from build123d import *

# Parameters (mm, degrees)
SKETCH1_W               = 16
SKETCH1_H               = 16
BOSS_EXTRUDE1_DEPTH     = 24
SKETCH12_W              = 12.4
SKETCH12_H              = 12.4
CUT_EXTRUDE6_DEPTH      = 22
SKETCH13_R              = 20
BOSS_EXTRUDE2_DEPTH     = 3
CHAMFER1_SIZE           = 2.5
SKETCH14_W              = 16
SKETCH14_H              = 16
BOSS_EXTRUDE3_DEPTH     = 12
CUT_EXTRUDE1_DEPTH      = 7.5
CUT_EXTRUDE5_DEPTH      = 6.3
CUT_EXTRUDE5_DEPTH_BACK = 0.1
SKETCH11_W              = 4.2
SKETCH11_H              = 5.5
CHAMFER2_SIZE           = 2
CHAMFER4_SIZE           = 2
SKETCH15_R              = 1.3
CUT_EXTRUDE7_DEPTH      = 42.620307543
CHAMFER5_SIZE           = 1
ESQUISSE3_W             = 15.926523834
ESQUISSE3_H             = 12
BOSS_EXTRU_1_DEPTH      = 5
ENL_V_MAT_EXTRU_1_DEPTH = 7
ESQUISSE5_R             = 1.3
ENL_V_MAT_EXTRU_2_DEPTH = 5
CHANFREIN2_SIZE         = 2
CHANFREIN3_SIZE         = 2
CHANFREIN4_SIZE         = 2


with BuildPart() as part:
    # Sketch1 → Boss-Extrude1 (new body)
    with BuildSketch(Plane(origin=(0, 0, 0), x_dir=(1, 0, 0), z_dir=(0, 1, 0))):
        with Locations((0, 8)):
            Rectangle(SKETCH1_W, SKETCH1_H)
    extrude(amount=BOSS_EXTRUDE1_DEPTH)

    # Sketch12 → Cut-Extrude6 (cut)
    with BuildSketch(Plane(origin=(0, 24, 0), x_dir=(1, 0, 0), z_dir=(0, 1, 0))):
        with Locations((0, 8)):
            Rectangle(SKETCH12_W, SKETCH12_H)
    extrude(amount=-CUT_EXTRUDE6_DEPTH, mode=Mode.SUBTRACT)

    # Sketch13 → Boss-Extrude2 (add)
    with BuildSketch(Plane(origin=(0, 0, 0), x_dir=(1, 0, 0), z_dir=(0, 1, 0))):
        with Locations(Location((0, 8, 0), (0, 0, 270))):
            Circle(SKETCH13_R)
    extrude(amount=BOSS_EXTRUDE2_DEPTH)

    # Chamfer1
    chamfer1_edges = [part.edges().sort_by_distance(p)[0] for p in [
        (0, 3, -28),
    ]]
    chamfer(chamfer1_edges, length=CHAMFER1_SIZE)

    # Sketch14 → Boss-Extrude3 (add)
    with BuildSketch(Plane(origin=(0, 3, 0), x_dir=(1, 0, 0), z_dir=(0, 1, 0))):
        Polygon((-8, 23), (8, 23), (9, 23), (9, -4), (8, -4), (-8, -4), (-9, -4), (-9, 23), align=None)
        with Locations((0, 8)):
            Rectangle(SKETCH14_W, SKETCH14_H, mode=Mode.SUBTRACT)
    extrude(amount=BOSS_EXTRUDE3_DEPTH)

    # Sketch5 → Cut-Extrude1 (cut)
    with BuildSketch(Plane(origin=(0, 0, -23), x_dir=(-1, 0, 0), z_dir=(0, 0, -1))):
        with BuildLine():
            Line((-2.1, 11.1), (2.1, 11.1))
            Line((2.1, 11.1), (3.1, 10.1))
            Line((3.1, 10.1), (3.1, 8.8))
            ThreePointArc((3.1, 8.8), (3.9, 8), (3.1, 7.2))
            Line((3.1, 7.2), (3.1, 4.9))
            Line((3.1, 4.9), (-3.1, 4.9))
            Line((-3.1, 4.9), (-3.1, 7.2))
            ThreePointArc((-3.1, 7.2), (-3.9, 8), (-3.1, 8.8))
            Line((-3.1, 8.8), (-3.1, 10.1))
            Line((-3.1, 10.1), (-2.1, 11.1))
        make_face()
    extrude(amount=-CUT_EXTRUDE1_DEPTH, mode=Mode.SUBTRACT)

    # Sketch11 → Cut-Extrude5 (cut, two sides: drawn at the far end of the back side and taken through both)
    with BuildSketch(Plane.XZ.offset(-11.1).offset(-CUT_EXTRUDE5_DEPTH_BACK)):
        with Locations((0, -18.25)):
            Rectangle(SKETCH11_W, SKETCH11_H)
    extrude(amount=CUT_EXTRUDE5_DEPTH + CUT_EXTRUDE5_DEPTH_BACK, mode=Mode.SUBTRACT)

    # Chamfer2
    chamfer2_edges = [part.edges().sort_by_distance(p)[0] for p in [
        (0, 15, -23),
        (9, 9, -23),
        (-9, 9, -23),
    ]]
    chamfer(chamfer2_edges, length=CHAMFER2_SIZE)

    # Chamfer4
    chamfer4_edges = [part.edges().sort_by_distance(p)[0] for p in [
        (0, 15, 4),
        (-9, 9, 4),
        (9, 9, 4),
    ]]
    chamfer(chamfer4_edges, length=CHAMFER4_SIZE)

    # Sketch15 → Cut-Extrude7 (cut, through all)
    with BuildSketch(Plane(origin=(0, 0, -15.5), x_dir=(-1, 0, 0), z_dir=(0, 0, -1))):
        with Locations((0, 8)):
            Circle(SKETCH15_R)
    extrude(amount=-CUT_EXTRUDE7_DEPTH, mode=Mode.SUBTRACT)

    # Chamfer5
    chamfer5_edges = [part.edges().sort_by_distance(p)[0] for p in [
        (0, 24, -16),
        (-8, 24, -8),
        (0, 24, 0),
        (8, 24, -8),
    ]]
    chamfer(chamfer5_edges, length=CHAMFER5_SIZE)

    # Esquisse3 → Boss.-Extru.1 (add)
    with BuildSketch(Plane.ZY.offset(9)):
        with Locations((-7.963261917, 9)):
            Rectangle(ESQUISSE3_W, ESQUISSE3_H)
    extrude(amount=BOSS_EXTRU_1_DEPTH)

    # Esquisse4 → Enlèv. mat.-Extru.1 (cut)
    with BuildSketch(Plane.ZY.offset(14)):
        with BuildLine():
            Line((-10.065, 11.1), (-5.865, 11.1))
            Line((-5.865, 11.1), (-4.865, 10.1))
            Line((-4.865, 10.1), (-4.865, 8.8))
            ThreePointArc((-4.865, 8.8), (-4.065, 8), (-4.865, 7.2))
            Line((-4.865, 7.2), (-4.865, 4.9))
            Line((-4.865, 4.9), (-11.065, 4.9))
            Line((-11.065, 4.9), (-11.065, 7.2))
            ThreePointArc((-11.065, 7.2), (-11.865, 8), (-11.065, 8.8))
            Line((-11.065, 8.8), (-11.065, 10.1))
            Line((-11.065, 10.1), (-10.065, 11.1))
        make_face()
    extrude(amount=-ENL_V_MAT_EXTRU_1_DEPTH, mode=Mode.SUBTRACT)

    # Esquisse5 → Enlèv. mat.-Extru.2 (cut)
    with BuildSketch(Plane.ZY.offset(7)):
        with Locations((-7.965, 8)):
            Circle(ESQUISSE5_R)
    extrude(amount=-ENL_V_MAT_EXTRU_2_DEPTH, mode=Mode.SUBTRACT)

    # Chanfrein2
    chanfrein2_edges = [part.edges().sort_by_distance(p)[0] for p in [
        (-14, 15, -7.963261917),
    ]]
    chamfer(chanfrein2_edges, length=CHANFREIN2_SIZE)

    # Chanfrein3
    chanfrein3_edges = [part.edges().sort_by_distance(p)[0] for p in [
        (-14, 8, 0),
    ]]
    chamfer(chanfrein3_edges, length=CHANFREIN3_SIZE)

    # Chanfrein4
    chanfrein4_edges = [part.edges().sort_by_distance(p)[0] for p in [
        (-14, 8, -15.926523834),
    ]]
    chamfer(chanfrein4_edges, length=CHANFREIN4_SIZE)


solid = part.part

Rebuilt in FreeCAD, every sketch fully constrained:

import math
import FreeCAD as App
import Part
import Sketcher

V = App.Vector


def edges_at(feature, points):
    """Names of the edges that pass closest to the given points."""
    edges = feature.Shape.Edges
    near = lambda p: min(range(len(edges)), key=lambda i: edges[i].distToShape(Part.Vertex(*p))[0])
    return sorted({f"Edge{near(p) + 1}" for p in points})


def add_polygon(sketch, points):
    """Adds a closed chain of lines whose ends are joined by coincident constraints."""
    first, n = sketch.GeometryCount, len(points)
    for a, b in zip(points, points[1:] + points[:1]):
        sketch.addGeometry(Part.LineSegment(App.Vector(*a, 0), App.Vector(*b, 0)), False)
    for i in range(n):
        sketch.addConstraint(Sketcher.Constraint("Coincident", first + i, 2, first + (i + 1) % n, 1))

doc = App.newDocument("Part")
body = doc.addObject("PartDesign::Body", "Body")

# Sketch on XZ plane
sketch1 = body.newObject("Sketcher::SketchObject", "Sketch")
sketch1.AttachmentSupport = (doc.getObject("XZ_Plane"), [""])
sketch1.MapMode = "FlatFace"
add_polygon(sketch1, [(-8, -16), (-8, 0), (8, 0), (8, -16)])  # lines 0-3
sketch1.addConstraint([
    Sketcher.Constraint("Vertical", 0),
    Sketcher.Constraint("Horizontal", 1),
    Sketcher.Constraint("Vertical", 2),
    Sketcher.Constraint("Horizontal", 3),
    Sketcher.Constraint("Symmetric", 0, 2, 1, 2, -1, 1),
    Sketcher.Constraint("Equal", 3, 0),
    Sketcher.Constraint("DistanceX", 1, 1, 1, 2, 16.0),
])
pad1 = body.newObject("PartDesign::Pad", "Pad")
pad1.Profile = sketch1
pad1.Length = 24
pad1.Reversed = True

# Sketch on XZ plane
sketch2 = body.newObject("Sketcher::SketchObject", "Sketch001")
sketch2.AttachmentSupport = (doc.getObject("XZ_Plane"), [""])
sketch2.MapMode = "FlatFace"
sketch2.AttachmentOffset = App.Placement(V(0, 0, -24), App.Rotation())
add_polygon(sketch2, [(-6, -14), (-6, -2), (6, -2), (6, -14)])  # lines 0-3
sketch2.addConstraint([
    Sketcher.Constraint("Vertical", 0),
    Sketcher.Constraint("Horizontal", 1),
    Sketcher.Constraint("Vertical", 2),
    Sketcher.Constraint("Horizontal", 3),
    Sketcher.Constraint("Equal", 3, 0),
    Sketcher.Constraint("DistanceX", 1, 1, 1, 2, 12.4),
    Sketcher.Constraint("DistanceX", 0, 2, -1, 1, 6.2),
    Sketcher.Constraint("DistanceY", 0, 2, -1, 1, 1.8),
])
pocket1 = body.newObject("PartDesign::Pocket", "Pocket")
pocket1.Profile = sketch2
pocket1.Length = 22
pocket1.Reversed = True

# Sketch on XZ plane
sketch3 = body.newObject("Sketcher::SketchObject", "Sketch002")
sketch3.AttachmentSupport = (doc.getObject("XZ_Plane"), [""])
sketch3.MapMode = "FlatFace"
sketch3.addGeometry(Part.Circle(V(0, -8, 0), V(0, 0, 1), 20), False)
sketch3.addConstraint([
    Sketcher.Constraint("PointOnObject", 0, 3, -2),
    Sketcher.Constraint("Diameter", 0, 40.0),
    Sketcher.Constraint("DistanceY", 0, 3, -1, 1, 8.0),
])
pad2 = body.newObject("PartDesign::Pad", "Pad001")
pad2.Profile = sketch3
pad2.Length = 3
pad2.Reversed = True
doc.recompute()

chamfer = body.newObject("PartDesign::Chamfer", "Chamfer")
chamfer.Base = (pad2, edges_at(pad2, [(0, 3, -28)]))
chamfer.Size = 2.5

# Sketch on XZ plane
sketch4 = body.newObject("Sketcher::SketchObject", "Sketch003")
sketch4.AttachmentSupport = (doc.getObject("XZ_Plane"), [""])
sketch4.MapMode = "FlatFace"
sketch4.AttachmentOffset = App.Placement(V(0, 0, -3), App.Rotation())
add_polygon(sketch4, [(9, -23), (-9, -23), (-9, 4), (9, 4)])  # lines 0-3
add_polygon(sketch4, [(-8, 0), (-8, -16), (8, -16), (8, 0)])  # lines 4-7
sketch4.addConstraint([
    Sketcher.Constraint("Horizontal", 0),
    Sketcher.Constraint("Vertical", 1),
    Sketcher.Constraint("Horizontal", 2),
    Sketcher.Constraint("Vertical", 3),
    Sketcher.Constraint("Vertical", 4),
    Sketcher.Constraint("Horizontal", 5),
    Sketcher.Constraint("Vertical", 6),
    Sketcher.Constraint("Horizontal", 7),
    Sketcher.Constraint("Symmetric", 6, 2, 7, 2, -1, 1),
    Sketcher.Constraint("Equal", 7, 4),
    Sketcher.Constraint("DistanceX", 0, 2, 0, 1, 18.0),
    Sketcher.Constraint("DistanceX", 5, 1, 5, 2, 16.0),
    Sketcher.Constraint("DistanceY", 1, 1, 1, 2, 27.0),
    Sketcher.Constraint("DistanceX", 0, 2, -1, 1, 9.0),
    Sketcher.Constraint("DistanceY", 0, 2, -1, 1, 23.0),
])
pad3 = body.newObject("PartDesign::Pad", "Pad002")
pad3.Profile = sketch4
pad3.Length = 12
pad3.Reversed = True

# Sketch on XY plane
sketch5 = body.newObject("Sketcher::SketchObject", "Sketch004")
sketch5.AttachmentSupport = (doc.getObject("XY_Plane"), [""])
sketch5.MapMode = "FlatFace"
sketch5.AttachmentOffset = App.Placement(V(0, 0, -23), App.Rotation())
sketch5.addGeometry([
    Part.LineSegment(V(-2.1, 11.1, 0), V(2.1, 11.1, 0)),  # 0
    Part.LineSegment(V(2.1, 11.1, 0), V(3.1, 10.1, 0)),  # 1
    Part.LineSegment(V(3.1, 10.1, 0), V(3.1, 8.8, 0)),  # 2
    Part.ArcOfCircle(Part.Circle(V(3.1, 8, 0), V(0, 0, 1), 0.8), math.radians(-90), math.radians(90)),  # 3
    Part.LineSegment(V(3.1, 7.2, 0), V(3.1, 4.9, 0)),  # 4
    Part.LineSegment(V(3.1, 4.9, 0), V(-3.1, 4.9, 0)),  # 5
    Part.LineSegment(V(-3.1, 4.9, 0), V(-3.1, 7.2, 0)),  # 6
    Part.ArcOfCircle(Part.Circle(V(-3.1, 8, 0), V(0, 0, 1), 0.8), math.radians(90), math.radians(270)),  # 7
    Part.LineSegment(V(-3.1, 8.8, 0), V(-3.1, 10.1, 0)),  # 8
    Part.LineSegment(V(-3.1, 10.1, 0), V(-2.1, 11.1, 0)),  # 9
], False)
sketch5.addConstraint([
    Sketcher.Constraint("Coincident", 0, 2, 1, 1),
    Sketcher.Constraint("Coincident", 1, 2, 2, 1),
    Sketcher.Constraint("Coincident", 2, 2, 3, 2),
    Sketcher.Constraint("Coincident", 3, 1, 4, 1),
    Sketcher.Constraint("Coincident", 4, 2, 5, 1),
    Sketcher.Constraint("Coincident", 5, 2, 6, 1),
    Sketcher.Constraint("Coincident", 6, 2, 7, 2),
    Sketcher.Constraint("Coincident", 7, 1, 8, 1),
    Sketcher.Constraint("Coincident", 8, 2, 9, 1),
    Sketcher.Constraint("Coincident", 9, 2, 0, 1),
    Sketcher.Constraint("Horizontal", 0),
    Sketcher.Constraint("Vertical", 2),
    Sketcher.Constraint("Vertical", 4),
    Sketcher.Constraint("Horizontal", 5),
    Sketcher.Constraint("Vertical", 6),
    Sketcher.Constraint("Vertical", 8),
    Sketcher.Constraint("Equal", 3, 7),
    Sketcher.Constraint("Symmetric", 3, 3, 7, 3, -2),
    Sketcher.Constraint("Symmetric", 1, 2, 8, 2, -2),
    Sketcher.Constraint("Perpendicular", 1, 9),
    Sketcher.Constraint("Vertical", 3, 3, 1, 2),
    Sketcher.Constraint("Vertical", 2, 2, 3, 1),
    Sketcher.Constraint("Vertical", 7, 3, 5, 2),
    Sketcher.Constraint("Equal", 1, 9),
    Sketcher.Constraint("Radius", 3, 0.8),
    Sketcher.Constraint("DistanceX", 0, 1, 0, 2, 4.2),
    Sketcher.Constraint("DistanceX", 5, 2, 5, 1, 6.2),
    Sketcher.Constraint("DistanceY", 2, 2, 2, 1, 1.3),
    Sketcher.Constraint("DistanceY", 4, 2, 4, 1, 2.3),
    Sketcher.Constraint("DistanceY", -1, 1, 3, 3, 8.0),
])
pocket2 = body.newObject("PartDesign::Pocket", "Pocket001")
pocket2.Profile = sketch5
pocket2.Length = 7.5
pocket2.Reversed = True

# Sketch on XZ plane
sketch6 = body.newObject("Sketcher::SketchObject", "Sketch005")
sketch6.AttachmentSupport = (doc.getObject("XZ_Plane"), [""])
sketch6.MapMode = "FlatFace"
sketch6.AttachmentOffset = App.Placement(V(0, 0, -11.1), App.Rotation())
add_polygon(sketch6, [(-2.1, -15.5), (-2.1, -21), (2.1, -21), (2.1, -15.5)])  # lines 0-3
sketch6.addConstraint([
    Sketcher.Constraint("Vertical", 0),
    Sketcher.Constraint("Horizontal", 1),
    Sketcher.Constraint("Vertical", 2),
    Sketcher.Constraint("Horizontal", 3),
    Sketcher.Constraint("DistanceX", 1, 1, 1, 2, 4.2),
    Sketcher.Constraint("DistanceY", 0, 2, 0, 1, 5.5),
    Sketcher.Constraint("DistanceY", 0, 2, -1, 1, 21.0),
    Sketcher.Constraint("DistanceX", 0, 2, -1, 1, 2.1),
])
pocket3 = body.newObject("PartDesign::Pocket", "Pocket002")
pocket3.Profile = sketch6
pocket3.Type = "TwoLengths"
pocket3.Length = 6.3
pocket3.Length2 = 0.1
pocket3.Reversed = True
doc.recompute()

chamfer2 = body.newObject("PartDesign::Chamfer", "Chamfer001")
chamfer2.Base = (pocket3, edges_at(pocket3, [(0, 15, -23), (9, 9, -23), (-9, 9, -23)]))
chamfer2.Size = 2
doc.recompute()

chamfer3 = body.newObject("PartDesign::Chamfer", "Chamfer002")
chamfer3.Base = (chamfer2, edges_at(chamfer2, [(0, 15, 4), (-9, 9, 4), (9, 9, 4)]))
chamfer3.Size = 2

# Sketch on XY plane
sketch7 = body.newObject("Sketcher::SketchObject", "Sketch006")
sketch7.AttachmentSupport = (doc.getObject("XY_Plane"), [""])
sketch7.MapMode = "FlatFace"
sketch7.AttachmentOffset = App.Placement(V(0, 0, -15.5), App.Rotation())
sketch7.addGeometry(Part.Circle(V(0, 8, 0), V(0, 0, 1), 1.3), False)
sketch7.addConstraint([
    Sketcher.Constraint("PointOnObject", 0, 3, -2),
    Sketcher.Constraint("Diameter", 0, 2.6),
    Sketcher.Constraint("DistanceY", -1, 1, 0, 3, 8.0),
])
pocket4 = body.newObject("PartDesign::Pocket", "Pocket003")
pocket4.Profile = sketch7
pocket4.Type = "ThroughAll"
pocket4.Reversed = True
doc.recompute()

chamfer4 = body.newObject("PartDesign::Chamfer", "Chamfer003")
chamfer4.Base = (pocket4, edges_at(pocket4, [
    (0, 24, -16),
    (-8, 24, -8),
    (0, 24, 0),
    (8, 24, -8),
]))
chamfer4.Size = 1

# Sketch on YZ plane
sketch8 = body.newObject("Sketcher::SketchObject", "Sketch007")
sketch8.AttachmentSupport = (doc.getObject("YZ_Plane"), [""])
sketch8.MapMode = "FlatFace"
sketch8.AttachmentOffset = App.Placement(V(0, 0, -9), App.Rotation())
add_polygon(sketch8, [(15, -16), (3, -16), (3, 0), (15, 0)])  # lines 0-3
sketch8.addConstraint([
    Sketcher.Constraint("Horizontal", 0),
    Sketcher.Constraint("Vertical", 1),
    Sketcher.Constraint("Horizontal", 2),
    Sketcher.Constraint("Vertical", 3),
    Sketcher.Constraint("PointOnObject", 1, 2, -1),
    Sketcher.Constraint("DistanceX", 0, 2, 0, 1, 12.0),
    Sketcher.Constraint("DistanceX", -1, 1, 0, 2, 3.0),
    Sketcher.Constraint("DistanceY", 1, 1, 1, 2, 15.926524),
])
pad4 = body.newObject("PartDesign::Pad", "Pad003")
pad4.Profile = sketch8
pad4.Length = 5
pad4.Reversed = True

# Sketch on YZ plane
sketch9 = body.newObject("Sketcher::SketchObject", "Sketch008")
sketch9.AttachmentSupport = (doc.getObject("YZ_Plane"), [""])
sketch9.MapMode = "FlatFace"
sketch9.AttachmentOffset = App.Placement(V(0, 0, -14), App.Rotation())
sketch9.addGeometry([
    Part.LineSegment(V(11.1, -5.9, 0), V(11.1, -10.1, 0)),  # 0
    Part.LineSegment(V(11.1, -10.1, 0), V(10.1, -11.1, 0)),  # 1
    Part.LineSegment(V(10.1, -11.1, 0), V(8.8, -11.1, 0)),  # 2
    Part.ArcOfCircle(Part.Circle(V(8, -11.1, 0), V(0, 0, 1), 0.8), math.radians(180), math.radians(360)),  # 3
    Part.LineSegment(V(7.2, -11.1, 0), V(4.9, -11.1, 0)),  # 4
    Part.LineSegment(V(4.9, -11.1, 0), V(4.9, -4.9, 0)),  # 5
    Part.LineSegment(V(4.9, -4.9, 0), V(7.2, -4.9, 0)),  # 6
    Part.ArcOfCircle(Part.Circle(V(8, -4.9, 0), V(0, 0, 1), 0.8), math.radians(0), math.radians(180)),  # 7
    Part.LineSegment(V(8.8, -4.9, 0), V(10.1, -4.9, 0)),  # 8
    Part.LineSegment(V(10.1, -4.9, 0), V(11.1, -5.9, 0)),  # 9
], False)
sketch9.addConstraint([
    Sketcher.Constraint("Coincident", 0, 2, 1, 1),
    Sketcher.Constraint("Coincident", 1, 2, 2, 1),
    Sketcher.Constraint("Coincident", 2, 2, 3, 2),
    Sketcher.Constraint("Coincident", 3, 1, 4, 1),
    Sketcher.Constraint("Coincident", 4, 2, 5, 1),
    Sketcher.Constraint("Coincident", 5, 2, 6, 1),
    Sketcher.Constraint("Coincident", 6, 2, 7, 2),
    Sketcher.Constraint("Coincident", 7, 1, 8, 1),
    Sketcher.Constraint("Coincident", 8, 2, 9, 1),
    Sketcher.Constraint("Coincident", 9, 2, 0, 1),
    Sketcher.Constraint("Vertical", 0),
    Sketcher.Constraint("Horizontal", 2),
    Sketcher.Constraint("Horizontal", 4),
    Sketcher.Constraint("Vertical", 5),
    Sketcher.Constraint("Horizontal", 6),
    Sketcher.Constraint("Horizontal", 8),
    Sketcher.Constraint("Equal", 3, 7),
    Sketcher.Constraint("Perpendicular", 1, 9),
    Sketcher.Constraint("Horizontal", 3, 3, 1, 2),
    Sketcher.Constraint("Horizontal", 2, 2, 3, 1),
    Sketcher.Constraint("Horizontal", 7, 3, 5, 2),
    Sketcher.Constraint("Horizontal", 6, 2, 7, 1),
    Sketcher.Constraint("Vertical", 3, 3, 7, 3),
    Sketcher.Constraint("Vertical", 1, 2, 8, 2),
    Sketcher.Constraint("Equal", 1, 9),
    Sketcher.Constraint("Radius", 3, 0.8),
    Sketcher.Constraint("DistanceX", 2, 2, 2, 1, 1.3),
    Sketcher.Constraint("DistanceX", 4, 2, 4, 1, 2.3),
    Sketcher.Constraint("DistanceY", 0, 2, 0, 1, 4.2),
    Sketcher.Constraint("DistanceY", 5, 1, 5, 2, 6.2),
    Sketcher.Constraint("DistanceX", -1, 1, 3, 3, 8.0),
    Sketcher.Constraint("DistanceY", 3, 3, -1, 1, 11.065),
])
pocket5 = body.newObject("PartDesign::Pocket", "Pocket004")
pocket5.Profile = sketch9
pocket5.Length = 7
pocket5.Reversed = True

# Sketch on YZ plane
sketch10 = body.newObject("Sketcher::SketchObject", "Sketch009")
sketch10.AttachmentSupport = (doc.getObject("YZ_Plane"), [""])
sketch10.MapMode = "FlatFace"
sketch10.AttachmentOffset = App.Placement(V(0, 0, -7), App.Rotation())
sketch10.addGeometry(Part.Circle(V(8, -8, 0), V(0, 0, 1), 1.3), False)
sketch10.addConstraint([
    Sketcher.Constraint("Diameter", 0, 2.6),
    Sketcher.Constraint("DistanceX", -1, 1, 0, 3, 8.0),
    Sketcher.Constraint("DistanceY", 0, 3, -1, 1, 7.965),
])
pocket6 = body.newObject("PartDesign::Pocket", "Pocket005")
pocket6.Profile = sketch10
pocket6.Length = 5
pocket6.Reversed = True
doc.recompute()

chamfer5 = body.newObject("PartDesign::Chamfer", "Chamfer004")
chamfer5.Base = (pocket6, edges_at(pocket6, [(-14, 15, -7.963)]))
chamfer5.Size = 2
doc.recompute()

chamfer6 = body.newObject("PartDesign::Chamfer", "Chamfer005")
chamfer6.Base = (chamfer5, edges_at(chamfer5, [(-14, 8, 0)]))
chamfer6.Size = 2
doc.recompute()

chamfer7 = body.newObject("PartDesign::Chamfer", "Chamfer006")
chamfer7.Base = (chamfer6, edges_at(chamfer6, [(-14, 8, -15.927)]))
chamfer7.Size = 2

doc.recompute()
